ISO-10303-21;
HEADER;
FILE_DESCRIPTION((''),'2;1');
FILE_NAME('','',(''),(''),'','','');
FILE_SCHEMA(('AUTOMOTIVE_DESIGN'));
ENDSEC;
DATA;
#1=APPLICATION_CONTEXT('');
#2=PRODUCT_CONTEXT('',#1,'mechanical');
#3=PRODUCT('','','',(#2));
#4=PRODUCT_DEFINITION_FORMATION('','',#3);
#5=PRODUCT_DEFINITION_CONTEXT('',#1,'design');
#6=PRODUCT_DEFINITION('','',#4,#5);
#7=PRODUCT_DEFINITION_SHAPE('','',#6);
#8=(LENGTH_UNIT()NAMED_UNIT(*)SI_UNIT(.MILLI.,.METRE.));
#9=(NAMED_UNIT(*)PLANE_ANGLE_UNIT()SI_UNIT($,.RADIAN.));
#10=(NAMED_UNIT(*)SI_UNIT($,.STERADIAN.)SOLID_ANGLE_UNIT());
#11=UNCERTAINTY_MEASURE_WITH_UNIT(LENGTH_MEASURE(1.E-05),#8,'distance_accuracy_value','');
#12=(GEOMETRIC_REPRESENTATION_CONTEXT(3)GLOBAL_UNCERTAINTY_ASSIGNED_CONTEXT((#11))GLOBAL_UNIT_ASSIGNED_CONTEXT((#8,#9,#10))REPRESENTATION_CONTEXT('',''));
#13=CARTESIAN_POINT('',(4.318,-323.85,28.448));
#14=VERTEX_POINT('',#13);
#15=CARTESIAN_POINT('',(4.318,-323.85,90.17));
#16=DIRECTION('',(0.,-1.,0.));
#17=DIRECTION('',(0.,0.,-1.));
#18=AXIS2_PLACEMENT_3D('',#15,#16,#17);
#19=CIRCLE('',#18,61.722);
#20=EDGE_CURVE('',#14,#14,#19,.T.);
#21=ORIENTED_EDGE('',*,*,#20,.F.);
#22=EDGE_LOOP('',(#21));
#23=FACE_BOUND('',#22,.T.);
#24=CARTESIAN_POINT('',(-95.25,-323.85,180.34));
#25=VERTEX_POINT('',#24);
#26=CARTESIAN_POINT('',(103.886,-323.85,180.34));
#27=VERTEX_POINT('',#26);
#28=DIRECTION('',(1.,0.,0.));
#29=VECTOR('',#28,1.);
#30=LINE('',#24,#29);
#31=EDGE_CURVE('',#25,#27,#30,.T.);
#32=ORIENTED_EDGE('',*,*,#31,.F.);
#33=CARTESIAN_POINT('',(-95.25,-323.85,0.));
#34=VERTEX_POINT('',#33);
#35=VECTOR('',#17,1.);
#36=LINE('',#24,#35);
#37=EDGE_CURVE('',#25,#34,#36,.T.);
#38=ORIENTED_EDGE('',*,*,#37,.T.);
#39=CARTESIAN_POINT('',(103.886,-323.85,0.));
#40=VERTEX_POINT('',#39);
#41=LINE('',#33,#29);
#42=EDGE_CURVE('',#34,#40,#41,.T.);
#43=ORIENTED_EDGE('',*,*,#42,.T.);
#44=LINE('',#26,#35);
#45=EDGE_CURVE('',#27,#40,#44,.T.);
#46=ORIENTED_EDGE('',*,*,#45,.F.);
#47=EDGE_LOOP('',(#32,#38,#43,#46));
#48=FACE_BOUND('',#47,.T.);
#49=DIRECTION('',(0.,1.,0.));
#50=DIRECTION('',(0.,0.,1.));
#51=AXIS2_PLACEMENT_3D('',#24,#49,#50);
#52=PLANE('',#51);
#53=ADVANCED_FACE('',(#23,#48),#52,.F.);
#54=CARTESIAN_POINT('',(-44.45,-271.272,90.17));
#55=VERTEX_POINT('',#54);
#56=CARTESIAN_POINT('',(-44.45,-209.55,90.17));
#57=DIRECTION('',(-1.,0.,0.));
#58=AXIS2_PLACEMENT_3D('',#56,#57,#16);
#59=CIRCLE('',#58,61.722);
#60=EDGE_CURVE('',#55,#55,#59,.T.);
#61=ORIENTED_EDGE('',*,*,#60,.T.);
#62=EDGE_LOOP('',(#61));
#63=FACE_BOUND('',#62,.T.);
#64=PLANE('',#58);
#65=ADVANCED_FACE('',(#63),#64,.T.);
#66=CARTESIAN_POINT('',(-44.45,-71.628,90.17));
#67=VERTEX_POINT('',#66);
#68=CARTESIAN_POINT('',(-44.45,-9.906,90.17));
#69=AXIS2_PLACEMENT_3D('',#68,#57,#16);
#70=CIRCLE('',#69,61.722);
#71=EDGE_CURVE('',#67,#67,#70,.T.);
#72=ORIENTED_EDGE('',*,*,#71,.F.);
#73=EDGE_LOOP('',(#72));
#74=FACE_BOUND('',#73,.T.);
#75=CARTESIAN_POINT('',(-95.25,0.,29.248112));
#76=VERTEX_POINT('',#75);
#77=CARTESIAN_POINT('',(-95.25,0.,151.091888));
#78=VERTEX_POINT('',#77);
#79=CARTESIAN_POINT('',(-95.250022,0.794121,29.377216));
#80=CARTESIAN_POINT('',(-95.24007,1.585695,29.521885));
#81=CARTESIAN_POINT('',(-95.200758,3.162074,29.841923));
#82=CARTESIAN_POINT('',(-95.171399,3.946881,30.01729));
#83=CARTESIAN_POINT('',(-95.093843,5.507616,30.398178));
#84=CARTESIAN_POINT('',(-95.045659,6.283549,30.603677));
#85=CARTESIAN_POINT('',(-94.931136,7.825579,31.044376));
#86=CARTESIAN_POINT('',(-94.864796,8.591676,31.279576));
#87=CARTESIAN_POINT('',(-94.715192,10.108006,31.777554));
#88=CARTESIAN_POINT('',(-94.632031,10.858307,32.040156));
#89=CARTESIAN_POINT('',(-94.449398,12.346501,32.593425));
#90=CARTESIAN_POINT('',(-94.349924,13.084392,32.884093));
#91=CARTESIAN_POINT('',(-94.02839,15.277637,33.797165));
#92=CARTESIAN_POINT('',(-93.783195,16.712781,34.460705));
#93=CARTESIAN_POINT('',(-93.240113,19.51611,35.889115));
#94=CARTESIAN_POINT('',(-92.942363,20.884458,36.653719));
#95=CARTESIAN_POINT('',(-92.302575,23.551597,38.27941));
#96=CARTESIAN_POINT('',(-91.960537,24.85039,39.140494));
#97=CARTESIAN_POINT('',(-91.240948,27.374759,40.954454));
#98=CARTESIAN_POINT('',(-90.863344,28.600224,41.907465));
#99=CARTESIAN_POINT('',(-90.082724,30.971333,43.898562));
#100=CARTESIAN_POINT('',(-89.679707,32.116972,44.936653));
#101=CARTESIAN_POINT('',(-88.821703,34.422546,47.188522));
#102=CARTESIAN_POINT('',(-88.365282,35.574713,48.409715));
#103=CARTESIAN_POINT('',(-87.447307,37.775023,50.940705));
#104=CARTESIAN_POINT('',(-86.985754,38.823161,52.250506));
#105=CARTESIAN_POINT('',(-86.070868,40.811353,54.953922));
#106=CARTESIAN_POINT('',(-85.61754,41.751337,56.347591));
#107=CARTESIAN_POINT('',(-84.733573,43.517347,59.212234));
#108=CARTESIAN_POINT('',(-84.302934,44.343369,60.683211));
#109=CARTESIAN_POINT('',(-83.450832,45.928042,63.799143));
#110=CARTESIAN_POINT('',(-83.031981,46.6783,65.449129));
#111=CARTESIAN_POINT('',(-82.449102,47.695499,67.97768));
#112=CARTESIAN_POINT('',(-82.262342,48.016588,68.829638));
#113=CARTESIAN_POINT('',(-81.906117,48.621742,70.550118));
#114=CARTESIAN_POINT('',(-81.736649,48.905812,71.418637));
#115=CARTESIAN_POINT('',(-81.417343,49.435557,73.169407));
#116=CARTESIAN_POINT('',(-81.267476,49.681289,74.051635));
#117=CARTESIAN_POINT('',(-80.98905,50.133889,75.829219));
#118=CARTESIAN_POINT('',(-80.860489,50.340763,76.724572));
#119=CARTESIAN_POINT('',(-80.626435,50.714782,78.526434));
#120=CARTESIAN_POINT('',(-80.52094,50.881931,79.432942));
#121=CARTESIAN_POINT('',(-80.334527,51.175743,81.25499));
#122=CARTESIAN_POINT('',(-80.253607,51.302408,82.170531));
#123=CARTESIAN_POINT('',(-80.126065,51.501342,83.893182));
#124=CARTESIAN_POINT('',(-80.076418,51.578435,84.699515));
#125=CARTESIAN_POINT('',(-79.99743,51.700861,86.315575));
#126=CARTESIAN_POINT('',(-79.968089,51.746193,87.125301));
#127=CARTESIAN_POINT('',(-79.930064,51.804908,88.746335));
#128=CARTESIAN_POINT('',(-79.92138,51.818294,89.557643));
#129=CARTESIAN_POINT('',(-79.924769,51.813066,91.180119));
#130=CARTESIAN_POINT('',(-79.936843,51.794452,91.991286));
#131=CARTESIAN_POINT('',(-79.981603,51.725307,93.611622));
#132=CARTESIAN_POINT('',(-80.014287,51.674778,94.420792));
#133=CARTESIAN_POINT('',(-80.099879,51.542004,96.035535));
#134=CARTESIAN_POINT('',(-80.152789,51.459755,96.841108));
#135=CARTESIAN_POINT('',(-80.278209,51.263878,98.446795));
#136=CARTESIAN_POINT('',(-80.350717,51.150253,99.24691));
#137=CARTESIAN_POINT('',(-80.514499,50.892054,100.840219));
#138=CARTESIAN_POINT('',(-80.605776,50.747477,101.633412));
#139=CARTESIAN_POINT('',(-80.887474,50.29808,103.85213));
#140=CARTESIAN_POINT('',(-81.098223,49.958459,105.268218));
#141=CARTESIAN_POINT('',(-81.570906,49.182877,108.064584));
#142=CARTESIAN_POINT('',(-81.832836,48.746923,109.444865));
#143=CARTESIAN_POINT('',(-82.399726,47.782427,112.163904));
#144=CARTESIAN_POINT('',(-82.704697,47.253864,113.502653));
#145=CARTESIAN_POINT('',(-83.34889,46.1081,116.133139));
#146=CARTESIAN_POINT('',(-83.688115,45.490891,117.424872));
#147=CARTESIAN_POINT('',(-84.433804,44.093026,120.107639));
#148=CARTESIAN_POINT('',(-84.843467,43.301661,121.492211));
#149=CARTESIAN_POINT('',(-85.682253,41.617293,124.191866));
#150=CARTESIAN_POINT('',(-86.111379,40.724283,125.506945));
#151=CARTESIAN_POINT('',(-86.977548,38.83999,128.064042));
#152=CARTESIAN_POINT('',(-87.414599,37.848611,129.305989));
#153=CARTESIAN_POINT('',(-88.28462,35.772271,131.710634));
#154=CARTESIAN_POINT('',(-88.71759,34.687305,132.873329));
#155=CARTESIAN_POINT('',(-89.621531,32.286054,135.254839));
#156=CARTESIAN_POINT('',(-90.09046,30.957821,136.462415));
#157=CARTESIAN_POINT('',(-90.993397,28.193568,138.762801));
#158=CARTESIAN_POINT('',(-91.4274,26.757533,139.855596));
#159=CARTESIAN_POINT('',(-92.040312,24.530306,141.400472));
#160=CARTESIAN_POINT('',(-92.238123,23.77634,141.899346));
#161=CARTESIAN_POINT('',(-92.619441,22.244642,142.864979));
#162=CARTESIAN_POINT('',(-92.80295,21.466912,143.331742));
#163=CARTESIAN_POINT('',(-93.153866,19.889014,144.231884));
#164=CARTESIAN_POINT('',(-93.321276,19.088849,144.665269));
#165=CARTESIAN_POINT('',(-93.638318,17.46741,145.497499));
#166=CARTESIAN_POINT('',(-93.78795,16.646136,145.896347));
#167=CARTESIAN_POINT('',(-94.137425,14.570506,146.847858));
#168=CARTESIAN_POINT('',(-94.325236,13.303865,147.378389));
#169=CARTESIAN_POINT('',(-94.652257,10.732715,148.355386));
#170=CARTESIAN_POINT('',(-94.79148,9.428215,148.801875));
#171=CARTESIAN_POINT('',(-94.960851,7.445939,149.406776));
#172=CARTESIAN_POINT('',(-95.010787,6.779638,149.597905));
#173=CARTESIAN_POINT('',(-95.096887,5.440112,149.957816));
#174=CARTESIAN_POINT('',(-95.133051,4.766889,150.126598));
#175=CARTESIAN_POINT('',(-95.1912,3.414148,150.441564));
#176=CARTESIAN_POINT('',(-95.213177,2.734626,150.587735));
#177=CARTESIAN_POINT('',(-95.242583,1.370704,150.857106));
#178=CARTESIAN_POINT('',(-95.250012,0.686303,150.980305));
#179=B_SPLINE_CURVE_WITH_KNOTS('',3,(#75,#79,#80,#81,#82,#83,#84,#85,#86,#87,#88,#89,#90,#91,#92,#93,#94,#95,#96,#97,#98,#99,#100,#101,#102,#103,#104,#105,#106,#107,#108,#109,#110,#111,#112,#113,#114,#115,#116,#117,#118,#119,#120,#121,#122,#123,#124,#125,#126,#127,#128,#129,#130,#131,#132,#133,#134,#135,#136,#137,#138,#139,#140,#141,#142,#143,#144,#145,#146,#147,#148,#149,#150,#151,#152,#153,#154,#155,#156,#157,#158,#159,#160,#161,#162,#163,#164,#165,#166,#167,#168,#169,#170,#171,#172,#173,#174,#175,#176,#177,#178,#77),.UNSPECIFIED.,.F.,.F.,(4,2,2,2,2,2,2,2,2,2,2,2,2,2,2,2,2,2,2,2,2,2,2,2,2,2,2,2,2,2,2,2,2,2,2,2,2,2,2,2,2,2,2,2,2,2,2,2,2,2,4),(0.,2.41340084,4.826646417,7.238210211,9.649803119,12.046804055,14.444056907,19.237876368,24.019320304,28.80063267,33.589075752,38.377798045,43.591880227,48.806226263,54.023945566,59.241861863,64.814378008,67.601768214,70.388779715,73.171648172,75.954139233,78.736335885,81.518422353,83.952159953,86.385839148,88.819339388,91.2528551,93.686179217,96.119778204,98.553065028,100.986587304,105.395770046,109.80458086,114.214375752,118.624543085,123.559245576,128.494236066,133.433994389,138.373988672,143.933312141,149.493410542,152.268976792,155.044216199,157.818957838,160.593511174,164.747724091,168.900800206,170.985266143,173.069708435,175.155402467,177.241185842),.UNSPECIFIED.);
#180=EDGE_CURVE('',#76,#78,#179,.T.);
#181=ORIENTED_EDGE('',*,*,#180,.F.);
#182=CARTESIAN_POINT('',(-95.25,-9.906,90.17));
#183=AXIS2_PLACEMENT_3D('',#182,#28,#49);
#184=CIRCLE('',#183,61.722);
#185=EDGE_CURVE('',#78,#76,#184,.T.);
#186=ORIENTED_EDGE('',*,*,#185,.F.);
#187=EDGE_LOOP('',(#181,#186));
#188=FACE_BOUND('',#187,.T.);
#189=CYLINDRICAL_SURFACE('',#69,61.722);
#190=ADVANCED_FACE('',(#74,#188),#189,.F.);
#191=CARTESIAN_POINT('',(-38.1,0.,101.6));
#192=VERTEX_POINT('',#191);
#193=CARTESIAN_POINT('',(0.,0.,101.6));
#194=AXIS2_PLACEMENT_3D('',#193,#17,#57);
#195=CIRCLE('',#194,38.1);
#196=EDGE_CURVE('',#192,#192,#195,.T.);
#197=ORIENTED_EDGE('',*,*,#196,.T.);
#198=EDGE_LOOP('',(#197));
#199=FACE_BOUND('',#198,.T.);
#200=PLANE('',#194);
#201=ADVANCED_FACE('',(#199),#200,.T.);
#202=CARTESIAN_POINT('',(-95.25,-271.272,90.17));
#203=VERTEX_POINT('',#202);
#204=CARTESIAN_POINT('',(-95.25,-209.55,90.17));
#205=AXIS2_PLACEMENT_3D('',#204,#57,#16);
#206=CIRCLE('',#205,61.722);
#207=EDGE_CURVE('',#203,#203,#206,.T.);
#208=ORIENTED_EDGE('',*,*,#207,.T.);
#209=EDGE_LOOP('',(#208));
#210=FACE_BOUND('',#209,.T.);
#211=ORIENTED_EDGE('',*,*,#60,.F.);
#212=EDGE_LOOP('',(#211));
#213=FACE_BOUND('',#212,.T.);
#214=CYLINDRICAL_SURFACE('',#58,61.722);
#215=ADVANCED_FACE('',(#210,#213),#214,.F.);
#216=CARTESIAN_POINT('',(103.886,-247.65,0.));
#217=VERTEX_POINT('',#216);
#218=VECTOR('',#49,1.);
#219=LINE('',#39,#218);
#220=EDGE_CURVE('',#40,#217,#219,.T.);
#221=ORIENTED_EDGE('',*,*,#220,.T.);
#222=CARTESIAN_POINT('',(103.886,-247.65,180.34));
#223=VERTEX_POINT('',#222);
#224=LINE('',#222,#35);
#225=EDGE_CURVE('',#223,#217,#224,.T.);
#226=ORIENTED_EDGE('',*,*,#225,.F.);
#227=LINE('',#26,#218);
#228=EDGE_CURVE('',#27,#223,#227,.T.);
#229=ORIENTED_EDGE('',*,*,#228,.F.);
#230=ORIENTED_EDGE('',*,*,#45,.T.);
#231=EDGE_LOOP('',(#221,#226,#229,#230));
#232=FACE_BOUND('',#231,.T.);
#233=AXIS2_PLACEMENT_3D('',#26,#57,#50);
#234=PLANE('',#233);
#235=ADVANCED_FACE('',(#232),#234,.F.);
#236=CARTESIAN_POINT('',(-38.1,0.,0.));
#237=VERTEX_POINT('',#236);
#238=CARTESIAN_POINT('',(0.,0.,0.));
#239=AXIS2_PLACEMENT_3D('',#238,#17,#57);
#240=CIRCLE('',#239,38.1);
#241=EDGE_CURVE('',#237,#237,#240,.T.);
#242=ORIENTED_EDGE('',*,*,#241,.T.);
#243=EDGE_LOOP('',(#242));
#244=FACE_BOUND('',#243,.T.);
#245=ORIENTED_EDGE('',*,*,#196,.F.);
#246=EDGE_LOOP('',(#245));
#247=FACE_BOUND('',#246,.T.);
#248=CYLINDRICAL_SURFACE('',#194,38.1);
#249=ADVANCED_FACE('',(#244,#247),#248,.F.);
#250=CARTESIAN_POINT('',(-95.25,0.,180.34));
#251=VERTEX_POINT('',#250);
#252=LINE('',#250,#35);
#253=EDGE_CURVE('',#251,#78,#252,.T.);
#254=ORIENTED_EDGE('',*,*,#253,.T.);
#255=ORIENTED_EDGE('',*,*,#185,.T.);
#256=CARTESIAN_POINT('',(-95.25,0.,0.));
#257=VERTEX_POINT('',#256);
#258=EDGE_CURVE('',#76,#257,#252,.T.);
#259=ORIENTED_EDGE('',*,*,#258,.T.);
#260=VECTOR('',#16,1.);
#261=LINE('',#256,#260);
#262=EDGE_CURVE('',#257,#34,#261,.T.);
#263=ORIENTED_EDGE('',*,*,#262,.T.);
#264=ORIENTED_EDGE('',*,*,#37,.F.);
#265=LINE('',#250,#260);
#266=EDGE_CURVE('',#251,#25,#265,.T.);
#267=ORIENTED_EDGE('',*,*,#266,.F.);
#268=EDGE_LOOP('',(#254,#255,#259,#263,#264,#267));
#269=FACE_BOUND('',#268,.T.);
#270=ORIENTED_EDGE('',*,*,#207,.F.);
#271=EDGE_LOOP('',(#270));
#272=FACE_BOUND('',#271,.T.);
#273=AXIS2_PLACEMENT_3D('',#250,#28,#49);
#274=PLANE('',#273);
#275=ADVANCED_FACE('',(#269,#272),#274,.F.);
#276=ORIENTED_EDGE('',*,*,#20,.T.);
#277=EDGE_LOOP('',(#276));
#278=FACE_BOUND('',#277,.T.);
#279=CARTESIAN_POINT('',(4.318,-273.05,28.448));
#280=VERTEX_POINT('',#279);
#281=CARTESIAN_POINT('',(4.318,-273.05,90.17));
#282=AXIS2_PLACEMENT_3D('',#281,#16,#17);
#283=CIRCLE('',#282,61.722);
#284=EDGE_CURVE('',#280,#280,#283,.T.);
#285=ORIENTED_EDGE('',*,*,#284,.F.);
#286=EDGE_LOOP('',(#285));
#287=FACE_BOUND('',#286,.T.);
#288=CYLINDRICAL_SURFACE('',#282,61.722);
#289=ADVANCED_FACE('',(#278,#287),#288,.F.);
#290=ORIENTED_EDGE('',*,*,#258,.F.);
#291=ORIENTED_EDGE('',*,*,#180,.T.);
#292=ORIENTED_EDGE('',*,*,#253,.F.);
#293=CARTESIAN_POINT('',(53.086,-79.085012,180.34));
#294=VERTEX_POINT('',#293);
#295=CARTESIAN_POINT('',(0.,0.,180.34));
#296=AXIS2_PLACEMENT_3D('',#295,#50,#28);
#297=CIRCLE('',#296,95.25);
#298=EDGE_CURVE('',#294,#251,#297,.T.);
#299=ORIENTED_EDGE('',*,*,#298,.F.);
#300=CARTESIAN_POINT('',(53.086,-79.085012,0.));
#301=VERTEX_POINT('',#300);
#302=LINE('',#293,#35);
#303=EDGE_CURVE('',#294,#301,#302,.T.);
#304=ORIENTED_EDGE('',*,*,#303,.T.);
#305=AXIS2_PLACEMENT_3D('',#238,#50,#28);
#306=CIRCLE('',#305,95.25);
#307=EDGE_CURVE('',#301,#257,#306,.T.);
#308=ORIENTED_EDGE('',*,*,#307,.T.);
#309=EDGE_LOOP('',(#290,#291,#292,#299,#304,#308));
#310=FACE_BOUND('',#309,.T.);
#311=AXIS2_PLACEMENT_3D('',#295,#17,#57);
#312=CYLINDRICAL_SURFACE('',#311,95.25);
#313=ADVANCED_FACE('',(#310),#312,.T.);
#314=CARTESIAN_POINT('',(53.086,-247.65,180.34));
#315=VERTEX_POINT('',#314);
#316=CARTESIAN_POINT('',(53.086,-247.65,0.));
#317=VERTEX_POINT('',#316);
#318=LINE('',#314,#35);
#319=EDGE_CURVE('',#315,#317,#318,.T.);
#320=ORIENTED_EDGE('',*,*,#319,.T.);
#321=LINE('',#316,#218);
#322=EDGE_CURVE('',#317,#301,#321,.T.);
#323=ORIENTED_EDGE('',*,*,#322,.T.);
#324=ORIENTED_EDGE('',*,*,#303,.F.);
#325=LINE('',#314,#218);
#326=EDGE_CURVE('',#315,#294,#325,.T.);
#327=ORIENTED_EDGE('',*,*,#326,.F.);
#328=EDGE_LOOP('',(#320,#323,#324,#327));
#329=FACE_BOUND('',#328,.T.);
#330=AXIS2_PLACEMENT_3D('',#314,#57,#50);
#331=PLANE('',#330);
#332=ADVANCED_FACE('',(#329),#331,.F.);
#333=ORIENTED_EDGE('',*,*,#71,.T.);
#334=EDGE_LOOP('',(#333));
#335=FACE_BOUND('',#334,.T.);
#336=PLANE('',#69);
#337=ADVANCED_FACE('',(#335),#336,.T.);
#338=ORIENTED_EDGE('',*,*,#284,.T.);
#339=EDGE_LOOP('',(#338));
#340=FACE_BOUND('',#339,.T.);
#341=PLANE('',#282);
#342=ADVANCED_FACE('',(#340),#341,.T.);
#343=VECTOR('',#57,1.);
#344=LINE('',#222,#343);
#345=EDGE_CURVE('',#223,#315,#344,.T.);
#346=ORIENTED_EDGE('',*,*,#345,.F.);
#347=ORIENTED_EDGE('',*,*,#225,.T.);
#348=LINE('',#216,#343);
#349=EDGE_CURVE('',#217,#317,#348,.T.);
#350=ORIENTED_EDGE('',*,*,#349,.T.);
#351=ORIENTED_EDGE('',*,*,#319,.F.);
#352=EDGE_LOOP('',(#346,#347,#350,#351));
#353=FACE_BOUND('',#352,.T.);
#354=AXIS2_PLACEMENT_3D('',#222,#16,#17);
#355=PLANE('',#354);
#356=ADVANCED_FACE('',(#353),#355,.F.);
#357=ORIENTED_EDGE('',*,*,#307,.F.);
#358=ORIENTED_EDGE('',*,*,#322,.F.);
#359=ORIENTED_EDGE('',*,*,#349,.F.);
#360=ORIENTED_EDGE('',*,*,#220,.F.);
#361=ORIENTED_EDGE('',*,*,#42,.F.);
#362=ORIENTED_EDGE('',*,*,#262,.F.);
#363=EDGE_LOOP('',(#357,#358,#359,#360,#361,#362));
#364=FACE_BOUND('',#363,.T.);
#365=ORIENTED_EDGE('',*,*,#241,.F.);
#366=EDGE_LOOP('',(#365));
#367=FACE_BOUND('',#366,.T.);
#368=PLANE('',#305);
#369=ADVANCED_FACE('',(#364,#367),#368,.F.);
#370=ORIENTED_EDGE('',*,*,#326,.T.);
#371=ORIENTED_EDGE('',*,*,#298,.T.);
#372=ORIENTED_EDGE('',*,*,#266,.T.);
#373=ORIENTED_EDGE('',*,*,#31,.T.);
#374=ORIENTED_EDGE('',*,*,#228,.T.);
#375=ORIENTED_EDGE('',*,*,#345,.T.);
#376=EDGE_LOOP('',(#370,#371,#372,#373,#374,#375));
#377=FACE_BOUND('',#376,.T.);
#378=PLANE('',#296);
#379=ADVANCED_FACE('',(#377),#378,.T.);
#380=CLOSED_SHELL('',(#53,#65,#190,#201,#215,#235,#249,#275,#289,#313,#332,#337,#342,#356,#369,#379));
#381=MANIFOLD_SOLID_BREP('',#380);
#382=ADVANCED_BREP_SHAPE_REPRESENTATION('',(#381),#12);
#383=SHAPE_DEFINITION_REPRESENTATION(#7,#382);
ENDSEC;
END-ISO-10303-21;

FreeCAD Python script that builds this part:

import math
import FreeCAD as App
import Part
import Sketcher

V = App.Vector
Q = App.Units.Quantity

doc = App.newDocument("Part")
body = doc.addObject("PartDesign::Body", "Body")

# Sketch on XY plane
sketch1 = body.newObject("Sketcher::SketchObject", "Sketch")
sketch1.AttachmentSupport = (doc.getObject("XY_Plane"), [""])
sketch1.MapMode = "FlatFace"
sketch1.addGeometry(Part.LineSegment(V(-95, 0, 0), V(-95, -324, 0)), False)
sketch1.addGeometry(Part.LineSegment(V(-95, -324, 0), V(104, -324, 0)), False)
sketch1.addGeometry(Part.LineSegment(V(104, -324, 0), V(104, -248, 0)), False)
sketch1.addGeometry(Part.LineSegment(V(104, -248, 0), V(53, -248, 0)), False)
sketch1.addGeometry(Part.LineSegment(V(53, -248, 0), V(53, -79, 0)), False)
sketch1.addGeometry(Part.ArcOfCircle(Part.Circle(V(0, 0, 0), V(0, 0, 1), 95), math.radians(-56), math.radians(180)), False)
sketch1.addConstraint(Sketcher.Constraint("Coincident", 0, 2, 1, 1))
sketch1.addConstraint(Sketcher.Constraint("Coincident", 1, 2, 2, 1))
sketch1.addConstraint(Sketcher.Constraint("Coincident", 2, 2, 3, 1))
sketch1.addConstraint(Sketcher.Constraint("Coincident", 3, 2, 4, 1))
sketch1.addConstraint(Sketcher.Constraint("Coincident", 4, 2, 5, 1))
sketch1.addConstraint(Sketcher.Constraint("Tangent", 5, 2, 0, 1))
sketch1.addConstraint(Sketcher.Constraint("Vertical", 0))
sketch1.addConstraint(Sketcher.Constraint("Horizontal", 1))
sketch1.addConstraint(Sketcher.Constraint("Vertical", 2))
sketch1.addConstraint(Sketcher.Constraint("Horizontal", 3))
sketch1.addConstraint(Sketcher.Constraint("Vertical", 4))
sketch1.addConstraint(Sketcher.Constraint("Coincident", 5, 3, -1, 1))
sketch1.addConstraint(Sketcher.Constraint("DistanceX", 3, 2, 3, 1, Q("2 in")))
sketch1.addConstraint(Sketcher.Constraint("DistanceY", 2, 1, 2, 2, Q("3 in")))
sketch1.addConstraint(Sketcher.Constraint("Radius", 5, Q("3.75 in")))
sketch1.addConstraint(Sketcher.Constraint("DistanceX", 1, 1, 1, 2, Q("7.84 in")))
sketch1.addConstraint(Sketcher.Constraint("DistanceY", 0, 2, 0, 1, Q("12.75 in")))
pad1 = body.newObject("PartDesign::Pad", "Pad")
pad1.Profile = sketch1
pad1.Length = Q("7.1 in")

# Sketch on XY plane
sketch2 = body.newObject("Sketcher::SketchObject", "Sketch001")
sketch2.AttachmentSupport = (doc.getObject("XY_Plane"), [""])
sketch2.MapMode = "FlatFace"
sketch2.addGeometry(Part.Circle(V(0, 0, 0), V(0, 0, 1), 38), False)
sketch2.addConstraint(Sketcher.Constraint("Coincident", 0, 3, -1, 1))
sketch2.addConstraint(Sketcher.Constraint("Diameter", 0, Q("3 in")))
pocket1 = body.newObject("PartDesign::Pocket", "Pocket")
pocket1.Profile = sketch2
pocket1.Length = Q("4 in")
pocket1.Reversed = True

# Sketch on XZ plane
sketch3 = body.newObject("Sketcher::SketchObject", "Sketch002")
sketch3.AttachmentSupport = (doc.getObject("XZ_Plane"), [""])
sketch3.MapMode = "FlatFace"
sketch3.AttachmentOffset = App.Placement(V(0, 0, 12.75 * 25.4), App.Rotation())
sketch3.addGeometry(Part.Circle(V(4, 90, 0), V(0, 0, 1), 62), False)
sketch3.addConstraint(Sketcher.Constraint("Diameter", 0, Q("4.86 in")))
sketch3.addConstraint(Sketcher.Constraint("DistanceX", -1, 1, 0, 3, Q("0.17 in")))
sketch3.addConstraint(Sketcher.Constraint("DistanceY", -1, 1, 0, 3, Q("3.55 in")))
pocket2 = body.newObject("PartDesign::Pocket", "Pocket001")
pocket2.Profile = sketch3
pocket2.Length = Q("2 in")

# Sketch on YZ plane
sketch4 = body.newObject("Sketcher::SketchObject", "Sketch003")
sketch4.AttachmentSupport = (doc.getObject("YZ_Plane"), [""])
sketch4.MapMode = "FlatFace"
sketch4.AttachmentOffset = App.Placement(V(0, 0, -3.75 * 25.4), App.Rotation())
sketch4.addGeometry(Part.Circle(V(-210, 90, 0), V(0, 0, 1), 62), False)
sketch4.addGeometry(Part.Circle(V(-10, 90, 0), V(0, 0, 1), 62), False)
sketch4.addConstraint(Sketcher.Constraint("Equal", 0, 1))
sketch4.addConstraint(Sketcher.Constraint("Horizontal", 0, 3, 1, 3))
sketch4.addConstraint(Sketcher.Constraint("Diameter", 0, Q("4.86 in")))
sketch4.addConstraint(Sketcher.Constraint("DistanceX", 0, 3, -1, 1, Q("8.25 in")))
sketch4.addConstraint(Sketcher.Constraint("DistanceY", -1, 1, 0, 3, Q("3.55 in")))
sketch4.addConstraint(Sketcher.Constraint("DistanceX", 1, 3, -1, 1, Q("0.39 in")))
pocket3 = body.newObject("PartDesign::Pocket", "Pocket002")
pocket3.Profile = sketch4
pocket3.Length = Q("2 in")
pocket3.Reversed = True

doc.recompute()
